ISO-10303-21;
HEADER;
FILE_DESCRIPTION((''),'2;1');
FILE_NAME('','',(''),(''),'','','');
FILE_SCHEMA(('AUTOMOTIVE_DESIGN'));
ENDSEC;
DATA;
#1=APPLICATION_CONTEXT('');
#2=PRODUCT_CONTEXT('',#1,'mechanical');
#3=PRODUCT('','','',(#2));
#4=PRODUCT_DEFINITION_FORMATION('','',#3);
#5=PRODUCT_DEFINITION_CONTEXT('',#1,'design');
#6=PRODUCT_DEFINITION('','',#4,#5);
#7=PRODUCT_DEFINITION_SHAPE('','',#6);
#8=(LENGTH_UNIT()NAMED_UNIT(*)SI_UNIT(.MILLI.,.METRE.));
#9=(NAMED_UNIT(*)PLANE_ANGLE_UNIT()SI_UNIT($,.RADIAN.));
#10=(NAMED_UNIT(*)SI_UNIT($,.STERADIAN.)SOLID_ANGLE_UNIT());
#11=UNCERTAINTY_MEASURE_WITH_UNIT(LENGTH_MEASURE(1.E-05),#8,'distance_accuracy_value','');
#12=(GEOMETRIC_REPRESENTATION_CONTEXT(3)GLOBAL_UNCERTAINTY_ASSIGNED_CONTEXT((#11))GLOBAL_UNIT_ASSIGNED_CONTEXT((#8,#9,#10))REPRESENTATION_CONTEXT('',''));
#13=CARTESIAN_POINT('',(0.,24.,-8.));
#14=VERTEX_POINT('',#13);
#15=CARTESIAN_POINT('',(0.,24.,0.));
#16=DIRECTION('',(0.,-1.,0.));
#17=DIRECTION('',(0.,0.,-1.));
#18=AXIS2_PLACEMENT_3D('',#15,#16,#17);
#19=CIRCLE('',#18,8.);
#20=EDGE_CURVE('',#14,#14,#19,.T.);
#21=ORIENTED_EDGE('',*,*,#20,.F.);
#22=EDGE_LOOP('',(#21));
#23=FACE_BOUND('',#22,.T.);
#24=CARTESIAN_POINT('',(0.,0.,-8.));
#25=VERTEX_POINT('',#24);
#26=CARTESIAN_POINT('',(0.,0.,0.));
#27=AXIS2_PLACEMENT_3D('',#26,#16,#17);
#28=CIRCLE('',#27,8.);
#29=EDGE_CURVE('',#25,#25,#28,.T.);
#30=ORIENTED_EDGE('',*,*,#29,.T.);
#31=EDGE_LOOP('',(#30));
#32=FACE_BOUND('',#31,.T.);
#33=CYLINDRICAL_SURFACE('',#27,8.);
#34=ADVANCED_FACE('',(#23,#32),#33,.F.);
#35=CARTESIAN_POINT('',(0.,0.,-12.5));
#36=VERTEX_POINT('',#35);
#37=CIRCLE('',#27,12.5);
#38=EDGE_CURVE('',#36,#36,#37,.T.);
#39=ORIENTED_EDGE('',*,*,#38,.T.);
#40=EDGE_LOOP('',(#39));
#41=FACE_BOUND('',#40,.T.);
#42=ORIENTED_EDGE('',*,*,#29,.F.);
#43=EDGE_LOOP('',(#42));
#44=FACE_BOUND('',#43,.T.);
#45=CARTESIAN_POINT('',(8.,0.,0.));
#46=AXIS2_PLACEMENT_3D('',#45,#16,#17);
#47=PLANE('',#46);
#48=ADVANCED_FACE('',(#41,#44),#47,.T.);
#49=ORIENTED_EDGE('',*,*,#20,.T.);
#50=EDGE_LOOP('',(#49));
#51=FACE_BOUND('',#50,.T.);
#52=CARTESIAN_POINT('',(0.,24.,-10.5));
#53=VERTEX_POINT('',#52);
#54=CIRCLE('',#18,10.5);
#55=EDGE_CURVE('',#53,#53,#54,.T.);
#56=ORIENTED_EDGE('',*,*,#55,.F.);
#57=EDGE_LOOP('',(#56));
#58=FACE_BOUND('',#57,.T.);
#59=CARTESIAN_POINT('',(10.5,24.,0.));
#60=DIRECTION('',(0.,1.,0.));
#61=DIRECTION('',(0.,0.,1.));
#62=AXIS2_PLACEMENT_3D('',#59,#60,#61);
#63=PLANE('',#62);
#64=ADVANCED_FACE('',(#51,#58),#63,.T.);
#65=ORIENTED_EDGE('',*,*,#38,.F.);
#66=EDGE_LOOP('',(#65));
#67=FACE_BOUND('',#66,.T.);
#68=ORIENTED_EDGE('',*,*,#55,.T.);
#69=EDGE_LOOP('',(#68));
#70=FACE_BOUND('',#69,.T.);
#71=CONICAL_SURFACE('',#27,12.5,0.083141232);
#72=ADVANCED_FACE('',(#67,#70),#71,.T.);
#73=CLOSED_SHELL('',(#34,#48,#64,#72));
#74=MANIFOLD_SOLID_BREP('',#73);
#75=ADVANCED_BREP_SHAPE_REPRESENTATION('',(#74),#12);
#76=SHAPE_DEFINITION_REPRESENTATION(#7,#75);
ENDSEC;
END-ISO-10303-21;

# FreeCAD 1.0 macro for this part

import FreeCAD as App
import Part
import Sketcher
from FreeCAD import Vector
Q = App.Units.Quantity


def add_polygon(sketch, points):
    """Adds a closed chain of lines whose ends are joined by coincident constraints."""
    first, n = sketch.GeometryCount, len(points)
    for a, b in zip(points, points[1:] + points[:1]):
        sketch.addGeometry(Part.LineSegment(App.Vector(*a, 0), App.Vector(*b, 0)), False)
    for i in range(n):
        sketch.addConstraint(Sketcher.Constraint("Coincident", first + i, 2, first + (i + 1) % n, 1))

doc = App.newDocument("Part")
body = doc.addObject("PartDesign::Body", "Body")

sketch1 = doc.addObject("Sketcher::SketchObject", "Sketch")
body.addObject(sketch1)
sketch1.AttachmentSupport = (doc.XY_Plane, [""])
sketch1.MapMode = "FlatFace"
add_polygon(sketch1, [(8, 0), (12.5, 0), (10.5, 24), (8, 24)])
sketch1.addConstraint([
    Sketcher.Constraint("Horizontal", 0),
    Sketcher.Constraint("Horizontal", 2),
    Sketcher.Constraint("Vertical", 3),
    Sketcher.Constraint("PointOnObject", 0, 2, -1),
    Sketcher.Constraint("DistanceY", 3, 2, 3, 1, Q("24 mm")),
    Sketcher.Constraint("DistanceX", 0, 1, 0, 2, Q("4.5 mm")),
    Sketcher.Constraint("DistanceX", 2, 2, 2, 1, Q("2.5 mm")),
    Sketcher.Constraint("DistanceX", -1, 1, 2, 2, Q("8 mm")),
])
revolution = doc.addObject("PartDesign::Revolution", "Revolution")
body.addObject(revolution)
revolution.Profile = sketch1
revolution.ReferenceAxis = (sketch1, ["V_Axis"])
revolution.Angle = 360

doc.recompute()
